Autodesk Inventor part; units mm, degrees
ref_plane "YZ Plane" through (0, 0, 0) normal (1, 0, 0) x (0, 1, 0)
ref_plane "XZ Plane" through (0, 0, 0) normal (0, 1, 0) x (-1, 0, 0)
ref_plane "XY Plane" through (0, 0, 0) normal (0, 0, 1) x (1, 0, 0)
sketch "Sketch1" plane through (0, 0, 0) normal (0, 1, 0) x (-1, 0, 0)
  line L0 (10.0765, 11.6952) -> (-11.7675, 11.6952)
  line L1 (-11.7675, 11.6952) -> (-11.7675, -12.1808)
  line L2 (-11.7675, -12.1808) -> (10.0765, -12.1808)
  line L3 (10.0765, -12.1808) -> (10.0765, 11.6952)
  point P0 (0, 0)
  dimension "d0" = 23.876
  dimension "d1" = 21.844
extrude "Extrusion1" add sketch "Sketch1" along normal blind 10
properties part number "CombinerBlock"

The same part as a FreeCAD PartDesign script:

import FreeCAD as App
import Part
import Sketcher
Q = App.Units.Quantity


def add_polygon(sketch, points):
    """Adds a closed chain of lines whose ends are joined by coincident constraints."""
    first, n = sketch.GeometryCount, len(points)
    for a, b in zip(points, points[1:] + points[:1]):
        sketch.addGeometry(Part.LineSegment(App.Vector(*a, 0), App.Vector(*b, 0)), False)
    for i in range(n):
        sketch.addConstraint(Sketcher.Constraint("Coincident", first + i, 2, first + (i + 1) % n, 1))

doc = App.newDocument("Part")
body = doc.addObject("PartDesign::Body", "Body")

sketch1 = body.newObject("Sketcher::SketchObject", "Sketch")
sketch1.AttachmentSupport = (doc.getObject("XZ_Plane"), [""])
sketch1.MapMode = "FlatFace"
add_polygon(sketch1, [(-10.0765, -12.1808), (-10.0765, 11.6952), (11.7675, 11.6952), (11.7675, -12.1808)])
sketch1.addConstraint(Sketcher.Constraint("Vertical", 0))
sketch1.addConstraint(Sketcher.Constraint("Horizontal", 1))
sketch1.addConstraint(Sketcher.Constraint("Vertical", 2))
sketch1.addConstraint(Sketcher.Constraint("Horizontal", 3))
sketch1.addConstraint(Sketcher.Constraint("DistanceX", 1, 1, 1, 2, Q("0.86 in")))
sketch1.addConstraint(Sketcher.Constraint("DistanceY", 0, 1, 0, 2, Q("0.94 in")))
sketch1.addConstraint(Sketcher.Constraint("DistanceX", 0, 2, -1, 1, 10.0765))
sketch1.addConstraint(Sketcher.Constraint("DistanceY", -1, 1, 0, 2, 11.6952))
pad1 = body.newObject("PartDesign::Pad", "Pad")
pad1.Profile = sketch1
pad1.Length = Q("0.3937008 in")
pad1.Reversed = True

doc.recompute()
